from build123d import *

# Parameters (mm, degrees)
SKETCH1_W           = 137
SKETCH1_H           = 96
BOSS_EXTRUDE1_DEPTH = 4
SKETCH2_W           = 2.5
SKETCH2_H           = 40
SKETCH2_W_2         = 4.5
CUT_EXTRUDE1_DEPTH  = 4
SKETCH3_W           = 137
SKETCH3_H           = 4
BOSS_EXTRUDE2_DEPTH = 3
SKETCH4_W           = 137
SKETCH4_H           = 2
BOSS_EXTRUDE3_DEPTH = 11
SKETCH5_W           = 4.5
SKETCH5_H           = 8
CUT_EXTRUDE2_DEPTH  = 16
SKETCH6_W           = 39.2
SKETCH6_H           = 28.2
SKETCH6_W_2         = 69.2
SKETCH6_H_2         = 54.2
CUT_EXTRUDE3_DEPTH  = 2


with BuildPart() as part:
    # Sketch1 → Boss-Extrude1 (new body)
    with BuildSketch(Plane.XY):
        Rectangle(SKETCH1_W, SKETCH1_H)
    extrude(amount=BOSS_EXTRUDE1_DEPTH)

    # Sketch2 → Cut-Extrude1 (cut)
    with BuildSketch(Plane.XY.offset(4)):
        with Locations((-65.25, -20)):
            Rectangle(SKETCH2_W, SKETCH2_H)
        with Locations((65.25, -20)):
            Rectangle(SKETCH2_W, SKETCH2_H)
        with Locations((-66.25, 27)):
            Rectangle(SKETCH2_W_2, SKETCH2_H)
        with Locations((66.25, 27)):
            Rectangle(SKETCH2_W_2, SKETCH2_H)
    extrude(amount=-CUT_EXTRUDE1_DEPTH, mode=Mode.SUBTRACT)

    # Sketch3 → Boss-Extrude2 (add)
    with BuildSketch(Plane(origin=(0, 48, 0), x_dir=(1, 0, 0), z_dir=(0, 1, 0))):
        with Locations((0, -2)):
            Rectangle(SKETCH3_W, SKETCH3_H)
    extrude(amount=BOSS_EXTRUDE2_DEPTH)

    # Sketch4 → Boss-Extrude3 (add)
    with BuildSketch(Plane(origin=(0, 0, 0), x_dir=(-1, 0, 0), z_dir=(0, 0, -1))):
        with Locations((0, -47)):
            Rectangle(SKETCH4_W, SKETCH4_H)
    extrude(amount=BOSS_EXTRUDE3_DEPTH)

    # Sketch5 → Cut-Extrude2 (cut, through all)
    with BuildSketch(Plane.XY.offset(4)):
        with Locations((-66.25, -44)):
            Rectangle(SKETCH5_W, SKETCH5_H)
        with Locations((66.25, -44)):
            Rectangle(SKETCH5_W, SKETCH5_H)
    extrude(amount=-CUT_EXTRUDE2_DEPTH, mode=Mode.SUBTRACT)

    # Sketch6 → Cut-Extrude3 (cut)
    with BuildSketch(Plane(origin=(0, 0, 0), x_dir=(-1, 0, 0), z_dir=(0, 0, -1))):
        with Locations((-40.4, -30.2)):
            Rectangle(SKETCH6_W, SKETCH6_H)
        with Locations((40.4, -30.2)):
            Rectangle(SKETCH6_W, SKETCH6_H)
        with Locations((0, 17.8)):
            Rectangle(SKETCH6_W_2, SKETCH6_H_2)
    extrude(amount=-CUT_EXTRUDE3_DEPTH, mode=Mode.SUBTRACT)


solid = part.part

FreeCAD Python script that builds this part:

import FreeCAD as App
import Part
import Sketcher

doc = App.newDocument("Part")
body = doc.addObject("PartDesign::Body", "Body")

sketch1 = body.newObject("Sketcher::SketchObject", "Sketch")
sketch1.AttachmentSupport = (doc.getObject("XY_Plane"), [""])
sketch1.MapMode = "FlatFace"
sketch1.addGeometry([
    Part.LineSegment(App.Vector(-68, 48, 0), App.Vector(-68, -48, 0)),
    Part.LineSegment(App.Vector(-68, -48, 0), App.Vector(68, -48, 0)),
    Part.LineSegment(App.Vector(68, -48, 0), App.Vector(68, 48, 0)),
    Part.LineSegment(App.Vector(68, 48, 0), App.Vector(-68, 48, 0)),
], False)
sketch1.addConstraint([
    Sketcher.Constraint("Coincident", 0, 2, 1, 1),
    Sketcher.Constraint("Coincident", 1, 2, 2, 1),
    Sketcher.Constraint("Coincident", 2, 2, 3, 1),
    Sketcher.Constraint("Coincident", 3, 2, 0, 1),
    Sketcher.Constraint("Vertical", 0),
    Sketcher.Constraint("Horizontal", 1),
    Sketcher.Constraint("Vertical", 2),
    Sketcher.Constraint("Horizontal", 3),
    Sketcher.Constraint("Symmetric", 0, 2, 2, 2, -1, 1),
    Sketcher.Constraint("DistanceX", 1, 1, 1, 2, 137.0),
    Sketcher.Constraint("DistanceY", 0, 2, 0, 1, 96.0),
])
pad1 = body.newObject("PartDesign::Pad", "Pad")
pad1.Profile = sketch1
pad1.Length = 4

sketch2 = body.newObject("Sketcher::SketchObject", "Sketch001")
sketch2.AttachmentSupport = (doc.getObject("XY_Plane"), [""])
sketch2.MapMode = "FlatFace"
sketch2.AttachmentOffset = App.Placement(App.Vector(0, 0, 4), App.Rotation())
sketch2.addGeometry([
    Part.LineSegment(App.Vector(-66.5, 0, 0), App.Vector(-66.5, -40, 0)),
    Part.LineSegment(App.Vector(-66.5, -40, 0), App.Vector(-64, -40, 0)),
    Part.LineSegment(App.Vector(-64, -40, 0), App.Vector(-64, 0, 0)),
    Part.LineSegment(App.Vector(-64, 0, 0), App.Vector(-66.5, 0, 0)),
    Part.LineSegment(App.Vector(64, 0, 0), App.Vector(64, -40, 0)),
    Part.LineSegment(App.Vector(64, -40, 0), App.Vector(66.5, -40, 0)),
    Part.LineSegment(App.Vector(66.5, -40, 0), App.Vector(66.5, 0, 0)),
    Part.LineSegment(App.Vector(66.5, 0, 0), App.Vector(64, 0, 0)),
    Part.LineSegment(App.Vector(-68.5, 47, 0), App.Vector(-68.5, 7, 0)),
    Part.LineSegment(App.Vector(-68.5, 7, 0), App.Vector(-64, 7, 0)),
    Part.LineSegment(App.Vector(-64, 7, 0), App.Vector(-64, 47, 0)),
    Part.LineSegment(App.Vector(-64, 47, 0), App.Vector(-68.5, 47, 0)),
    Part.LineSegment(App.Vector(64, 47, 0), App.Vector(64, 7, 0)),
    Part.LineSegment(App.Vector(64, 7, 0), App.Vector(68.5, 7, 0)),
    Part.LineSegment(App.Vector(68.5, 7, 0), App.Vector(68.5, 47, 0)),
    Part.LineSegment(App.Vector(68.5, 47, 0), App.Vector(64, 47, 0)),
], False)
sketch2.addConstraint([
    Sketcher.Constraint("Coincident", 0, 2, 1, 1),
    Sketcher.Constraint("Coincident", 1, 2, 2, 1),
    Sketcher.Constraint("Coincident", 2, 2, 3, 1),
    Sketcher.Constraint("Coincident", 3, 2, 0, 1),
    Sketcher.Constraint("Coincident", 4, 2, 5, 1),
    Sketcher.Constraint("Coincident", 5, 2, 6, 1),
    Sketcher.Constraint("Coincident", 6, 2, 7, 1),
    Sketcher.Constraint("Coincident", 7, 2, 4, 1),
    Sketcher.Constraint("Coincident", 8, 2, 9, 1),
    Sketcher.Constraint("Coincident", 9, 2, 10, 1),
    Sketcher.Constraint("Coincident", 10, 2, 11, 1),
    Sketcher.Constraint("Coincident", 11, 2, 8, 1),
    Sketcher.Constraint("Coincident", 12, 2, 13, 1),
    Sketcher.Constraint("Coincident", 13, 2, 14, 1),
    Sketcher.Constraint("Coincident", 14, 2, 15, 1),
    Sketcher.Constraint("Coincident", 15, 2, 12, 1),
    Sketcher.Constraint("Vertical", 0),
    Sketcher.Constraint("Horizontal", 1),
    Sketcher.Constraint("Vertical", 2),
    Sketcher.Constraint("Horizontal", 3),
    Sketcher.Constraint("Vertical", 4),
    Sketcher.Constraint("Horizontal", 5),
    Sketcher.Constraint("Vertical", 6),
    Sketcher.Constraint("Horizontal", 7),
    Sketcher.Constraint("Vertical", 8),
    Sketcher.Constraint("Horizontal", 9),
    Sketcher.Constraint("Vertical", 10),
    Sketcher.Constraint("Horizontal", 11),
    Sketcher.Constraint("Vertical", 12),
    Sketcher.Constraint("Horizontal", 13),
    Sketcher.Constraint("Vertical", 14),
    Sketcher.Constraint("Horizontal", 15),
    Sketcher.Constraint("Symmetric", 3, 2, 6, 2, -1, 1),
    Sketcher.Constraint("Symmetric", 1, 2, 4, 2, -2),
    Sketcher.Constraint("Symmetric", 9, 2, 12, 2, -2),
    Sketcher.Constraint("Symmetric", 11, 2, 14, 2, -2),
    Sketcher.Constraint("PointOnObject", 2, 2, -1),
    Sketcher.Constraint("Vertical", 2, 2, 9, 2),
    Sketcher.Constraint("Equal", 6, 8),
    Sketcher.Constraint("DistanceY", 0, 2, 0, 1, 40.0),
    Sketcher.Constraint("DistanceX", 1, 1, 1, 2, 2.5),
    Sketcher.Constraint("DistanceX", 9, 1, 9, 2, 4.5),
    Sketcher.Constraint("DistanceX", 1, 2, -1, 1, 64.0),
    Sketcher.Constraint("DistanceY", -1, 1, 8, 2, 7.0),
])
pocket1 = body.newObject("PartDesign::Pocket", "Pocket")
pocket1.Profile = sketch2
pocket1.Length = 4

sketch3 = body.newObject("Sketcher::SketchObject", "Sketch002")
sketch3.AttachmentSupport = (doc.getObject("XZ_Plane"), [""])
sketch3.MapMode = "FlatFace"
sketch3.AttachmentOffset = App.Placement(App.Vector(0, 0, -48), App.Rotation())
sketch3.addGeometry([
    Part.LineSegment(App.Vector(-68.5, 0, 0), App.Vector(-68.5, 4, 0)),
    Part.LineSegment(App.Vector(-68.5, 4, 0), App.Vector(68.5, 4, 0)),
    Part.LineSegment(App.Vector(68.5, 4, 0), App.Vector(68.5, 0, 0)),
    Part.LineSegment(App.Vector(68.5, 0, 0), App.Vector(-68.5, 0, 0)),
], False)
sketch3.addConstraint([
    Sketcher.Constraint("Coincident", 0, 2, 1, 1),
    Sketcher.Constraint("Coincident", 1, 2, 2, 1),
    Sketcher.Constraint("Coincident", 2, 2, 3, 1),
    Sketcher.Constraint("Coincident", 3, 2, 0, 1),
    Sketcher.Constraint("Vertical", 0),
    Sketcher.Constraint("Horizontal", 1),
    Sketcher.Constraint("Vertical", 2),
    Sketcher.Constraint("Horizontal", 3),
    Sketcher.Constraint("Symmetric", 2, 2, 3, 2, -1, 1),
    Sketcher.Constraint("DistanceX", 1, 1, 1, 2, 137.0),
    Sketcher.Constraint("DistanceY", 0, 1, 0, 2, 4.0),
])
pad2 = body.newObject("PartDesign::Pad", "Pad001")
pad2.Profile = sketch3
pad2.Length = 3
pad2.Reversed = True

sketch4 = body.newObject("Sketcher::SketchObject", "Sketch003")
sketch4.AttachmentSupport = (doc.getObject("XY_Plane"), [""])
sketch4.MapMode = "FlatFace"
sketch4.addGeometry([
    Part.LineSegment(App.Vector(68.5, -46, 0), App.Vector(68.5, -48, 0)),
    Part.LineSegment(App.Vector(68.5, -48, 0), App.Vector(-68.5, -48, 0)),
    Part.LineSegment(App.Vector(-68.5, -48, 0), App.Vector(-68.5, -46, 0)),
    Part.LineSegment(App.Vector(-68.5, -46, 0), App.Vector(68.5, -46, 0)),
], False)
sketch4.addConstraint([
    Sketcher.Constraint("Coincident", 0, 2, 1, 1),
    Sketcher.Constraint("Coincident", 1, 2, 2, 1),
    Sketcher.Constraint("Coincident", 2, 2, 3, 1),
    Sketcher.Constraint("Coincident", 3, 2, 0, 1),
    Sketcher.Constraint("Vertical", 0),
    Sketcher.Constraint("Horizontal", 1),
    Sketcher.Constraint("Vertical", 2),
    Sketcher.Constraint("Horizontal", 3),
    Sketcher.Constraint("DistanceX", 1, 2, 1, 1, 137.0),
    Sketcher.Constraint("DistanceY", 0, 2, 0, 1, 2.0),
    Sketcher.Constraint("DistanceY", 0, 2, -1, 1, 48.0),
    Sketcher.Constraint("DistanceX", -1, 1, 0, 2, 68.5),
])
pad3 = body.newObject("PartDesign::Pad", "Pad002")
pad3.Profile = sketch4
pad3.Length = 11
pad3.Reversed = True

sketch5 = body.newObject("Sketcher::SketchObject", "Sketch004")
sketch5.AttachmentSupport = (doc.getObject("XY_Plane"), [""])
sketch5.MapMode = "FlatFace"
sketch5.AttachmentOffset = App.Placement(App.Vector(0, 0, 4), App.Rotation())
sketch5.addGeometry([
    Part.LineSegment(App.Vector(-68.5, -40, 0), App.Vector(-68.5, -48, 0)),
    Part.LineSegment(App.Vector(-68.5, -48, 0), App.Vector(-64, -48, 0)),
    Part.LineSegment(App.Vector(-64, -48, 0), App.Vector(-64, -40, 0)),
    Part.LineSegment(App.Vector(-64, -40, 0), App.Vector(-68.5, -40, 0)),
    Part.LineSegment(App.Vector(64, -40, 0), App.Vector(64, -48, 0)),
    Part.LineSegment(App.Vector(64, -48, 0), App.Vector(68.5, -48, 0)),
    Part.LineSegment(App.Vector(68.5, -48, 0), App.Vector(68.5, -40, 0)),
    Part.LineSegment(App.Vector(68.5, -40, 0), App.Vector(64, -40, 0)),
], False)
sketch5.addConstraint([
    Sketcher.Constraint("Coincident", 0, 2, 1, 1),
    Sketcher.Constraint("Coincident", 1, 2, 2, 1),
    Sketcher.Constraint("Coincident", 2, 2, 3, 1),
    Sketcher.Constraint("Coincident", 3, 2, 0, 1),
    Sketcher.Constraint("Coincident", 4, 2, 5, 1),
    Sketcher.Constraint("Coincident", 5, 2, 6, 1),
    Sketcher.Constraint("Coincident", 6, 2, 7, 1),
    Sketcher.Constraint("Coincident", 7, 2, 4, 1),
    Sketcher.Constraint("Vertical", 0),
    Sketcher.Constraint("Horizontal", 1),
    Sketcher.Constraint("Vertical", 2),
    Sketcher.Constraint("Horizontal", 3),
    Sketcher.Constraint("Vertical", 4),
    Sketcher.Constraint("Horizontal", 5),
    Sketcher.Constraint("Vertical", 6),
    Sketcher.Constraint("Horizontal", 7),
    Sketcher.Constraint("Symmetric", 1, 2, 4, 2, -2),
    Sketcher.Constraint("Symmetric", 3, 2, 6, 2, -2),
    Sketcher.Constraint("DistanceY", 0, 2, 0, 1, 8.0),
    Sketcher.Constraint("DistanceX", 1, 1, 1, 2, 4.5),
    Sketcher.Constraint("DistanceY", 0, 2, -1, 1, 48.0),
    Sketcher.Constraint("DistanceX", 1, 2, -1, 1, 64.0),
])
pocket2 = body.newObject("PartDesign::Pocket", "Pocket001")
pocket2.Profile = sketch5
pocket2.Type = "ThroughAll"

sketch6 = body.newObject("Sketcher::SketchObject", "Sketch005")
sketch6.AttachmentSupport = (doc.getObject("XY_Plane"), [""])
sketch6.MapMode = "FlatFace"
sketch6.addGeometry([
    Part.LineSegment(App.Vector(60, -16, 0), App.Vector(60, -44, 0)),
    Part.LineSegment(App.Vector(60, -44, 0), App.Vector(21, -44, 0)),
    Part.LineSegment(App.Vector(21, -44, 0), App.Vector(21, -16, 0)),
    Part.LineSegment(App.Vector(21, -16, 0), App.Vector(60, -16, 0)),
    Part.LineSegment(App.Vector(-21, -16, 0), App.Vector(-21, -44, 0)),
    Part.LineSegment(App.Vector(-21, -44, 0), App.Vector(-60, -44, 0)),
    Part.LineSegment(App.Vector(-60, -44, 0), App.Vector(-60, -16, 0)),
    Part.LineSegment(App.Vector(-60, -16, 0), App.Vector(-21, -16, 0)),
    Part.LineSegment(App.Vector(35, 45, 0), App.Vector(35, -9, 0)),
    Part.LineSegment(App.Vector(35, -9, 0), App.Vector(-35, -9, 0)),
    Part.LineSegment(App.Vector(-35, -9, 0), App.Vector(-35, 45, 0)),
    Part.LineSegment(App.Vector(-35, 45, 0), App.Vector(35, 45, 0)),
], False)
sketch6.addConstraint([
    Sketcher.Constraint("Coincident", 0, 2, 1, 1),
    Sketcher.Constraint("Coincident", 1, 2, 2, 1),
    Sketcher.Constraint("Coincident", 2, 2, 3, 1),
    Sketcher.Constraint("Coincident", 3, 2, 0, 1),
    Sketcher.Constraint("Coincident", 4, 2, 5, 1),
    Sketcher.Constraint("Coincident", 5, 2, 6, 1),
    Sketcher.Constraint("Coincident", 6, 2, 7, 1),
    Sketcher.Constraint("Coincident", 7, 2, 4, 1),
    Sketcher.Constraint("Coincident", 8, 2, 9, 1),
    Sketcher.Constraint("Coincident", 9, 2, 10, 1),
    Sketcher.Constraint("Coincident", 10, 2, 11, 1),
    Sketcher.Constraint("Coincident", 11, 2, 8, 1),
    Sketcher.Constraint("Vertical", 0),
    Sketcher.Constraint("Horizontal", 1),
    Sketcher.Constraint("Vertical", 2),
    Sketcher.Constraint("Horizontal", 3),
    Sketcher.Constraint("Vertical", 4),
    Sketcher.Constraint("Horizontal", 5),
    Sketcher.Constraint("Vertical", 6),
    Sketcher.Constraint("Horizontal", 7),
    Sketcher.Constraint("Vertical", 8),
    Sketcher.Constraint("Horizontal", 9),
    Sketcher.Constraint("Vertical", 10),
    Sketcher.Constraint("Horizontal", 11),
    Sketcher.Constraint("Symmetric", 1, 2, 4, 2, -2),
    Sketcher.Constraint("Symmetric", 3, 2, 6, 2, -2),
    Sketcher.Constraint("DistanceX", 1, 2, 1, 1, 39.2),
    Sketcher.Constraint("DistanceX", 9, 2, 9, 1, 69.2),
    Sketcher.Constraint("DistanceY", 0, 2, 0, 1, 28.2),
    Sketcher.Constraint("DistanceY", 8, 2, 8, 1, 54.2),
    Sketcher.Constraint("DistanceX", -1, 1, 0, 2, 60.0),
    Sketcher.Constraint("DistanceY", 1, 2, 8, 2, 35.0),
    Sketcher.Constraint("DistanceY", 0, 2, -1, 1, 44.3),
    Sketcher.Constraint("DistanceX", -1, 1, 8, 2, 34.6),
])
pocket3 = body.newObject("PartDesign::Pocket", "Pocket002")
pocket3.Profile = sketch6
pocket3.Length = 2
pocket3.Reversed = True

doc.recompute()
